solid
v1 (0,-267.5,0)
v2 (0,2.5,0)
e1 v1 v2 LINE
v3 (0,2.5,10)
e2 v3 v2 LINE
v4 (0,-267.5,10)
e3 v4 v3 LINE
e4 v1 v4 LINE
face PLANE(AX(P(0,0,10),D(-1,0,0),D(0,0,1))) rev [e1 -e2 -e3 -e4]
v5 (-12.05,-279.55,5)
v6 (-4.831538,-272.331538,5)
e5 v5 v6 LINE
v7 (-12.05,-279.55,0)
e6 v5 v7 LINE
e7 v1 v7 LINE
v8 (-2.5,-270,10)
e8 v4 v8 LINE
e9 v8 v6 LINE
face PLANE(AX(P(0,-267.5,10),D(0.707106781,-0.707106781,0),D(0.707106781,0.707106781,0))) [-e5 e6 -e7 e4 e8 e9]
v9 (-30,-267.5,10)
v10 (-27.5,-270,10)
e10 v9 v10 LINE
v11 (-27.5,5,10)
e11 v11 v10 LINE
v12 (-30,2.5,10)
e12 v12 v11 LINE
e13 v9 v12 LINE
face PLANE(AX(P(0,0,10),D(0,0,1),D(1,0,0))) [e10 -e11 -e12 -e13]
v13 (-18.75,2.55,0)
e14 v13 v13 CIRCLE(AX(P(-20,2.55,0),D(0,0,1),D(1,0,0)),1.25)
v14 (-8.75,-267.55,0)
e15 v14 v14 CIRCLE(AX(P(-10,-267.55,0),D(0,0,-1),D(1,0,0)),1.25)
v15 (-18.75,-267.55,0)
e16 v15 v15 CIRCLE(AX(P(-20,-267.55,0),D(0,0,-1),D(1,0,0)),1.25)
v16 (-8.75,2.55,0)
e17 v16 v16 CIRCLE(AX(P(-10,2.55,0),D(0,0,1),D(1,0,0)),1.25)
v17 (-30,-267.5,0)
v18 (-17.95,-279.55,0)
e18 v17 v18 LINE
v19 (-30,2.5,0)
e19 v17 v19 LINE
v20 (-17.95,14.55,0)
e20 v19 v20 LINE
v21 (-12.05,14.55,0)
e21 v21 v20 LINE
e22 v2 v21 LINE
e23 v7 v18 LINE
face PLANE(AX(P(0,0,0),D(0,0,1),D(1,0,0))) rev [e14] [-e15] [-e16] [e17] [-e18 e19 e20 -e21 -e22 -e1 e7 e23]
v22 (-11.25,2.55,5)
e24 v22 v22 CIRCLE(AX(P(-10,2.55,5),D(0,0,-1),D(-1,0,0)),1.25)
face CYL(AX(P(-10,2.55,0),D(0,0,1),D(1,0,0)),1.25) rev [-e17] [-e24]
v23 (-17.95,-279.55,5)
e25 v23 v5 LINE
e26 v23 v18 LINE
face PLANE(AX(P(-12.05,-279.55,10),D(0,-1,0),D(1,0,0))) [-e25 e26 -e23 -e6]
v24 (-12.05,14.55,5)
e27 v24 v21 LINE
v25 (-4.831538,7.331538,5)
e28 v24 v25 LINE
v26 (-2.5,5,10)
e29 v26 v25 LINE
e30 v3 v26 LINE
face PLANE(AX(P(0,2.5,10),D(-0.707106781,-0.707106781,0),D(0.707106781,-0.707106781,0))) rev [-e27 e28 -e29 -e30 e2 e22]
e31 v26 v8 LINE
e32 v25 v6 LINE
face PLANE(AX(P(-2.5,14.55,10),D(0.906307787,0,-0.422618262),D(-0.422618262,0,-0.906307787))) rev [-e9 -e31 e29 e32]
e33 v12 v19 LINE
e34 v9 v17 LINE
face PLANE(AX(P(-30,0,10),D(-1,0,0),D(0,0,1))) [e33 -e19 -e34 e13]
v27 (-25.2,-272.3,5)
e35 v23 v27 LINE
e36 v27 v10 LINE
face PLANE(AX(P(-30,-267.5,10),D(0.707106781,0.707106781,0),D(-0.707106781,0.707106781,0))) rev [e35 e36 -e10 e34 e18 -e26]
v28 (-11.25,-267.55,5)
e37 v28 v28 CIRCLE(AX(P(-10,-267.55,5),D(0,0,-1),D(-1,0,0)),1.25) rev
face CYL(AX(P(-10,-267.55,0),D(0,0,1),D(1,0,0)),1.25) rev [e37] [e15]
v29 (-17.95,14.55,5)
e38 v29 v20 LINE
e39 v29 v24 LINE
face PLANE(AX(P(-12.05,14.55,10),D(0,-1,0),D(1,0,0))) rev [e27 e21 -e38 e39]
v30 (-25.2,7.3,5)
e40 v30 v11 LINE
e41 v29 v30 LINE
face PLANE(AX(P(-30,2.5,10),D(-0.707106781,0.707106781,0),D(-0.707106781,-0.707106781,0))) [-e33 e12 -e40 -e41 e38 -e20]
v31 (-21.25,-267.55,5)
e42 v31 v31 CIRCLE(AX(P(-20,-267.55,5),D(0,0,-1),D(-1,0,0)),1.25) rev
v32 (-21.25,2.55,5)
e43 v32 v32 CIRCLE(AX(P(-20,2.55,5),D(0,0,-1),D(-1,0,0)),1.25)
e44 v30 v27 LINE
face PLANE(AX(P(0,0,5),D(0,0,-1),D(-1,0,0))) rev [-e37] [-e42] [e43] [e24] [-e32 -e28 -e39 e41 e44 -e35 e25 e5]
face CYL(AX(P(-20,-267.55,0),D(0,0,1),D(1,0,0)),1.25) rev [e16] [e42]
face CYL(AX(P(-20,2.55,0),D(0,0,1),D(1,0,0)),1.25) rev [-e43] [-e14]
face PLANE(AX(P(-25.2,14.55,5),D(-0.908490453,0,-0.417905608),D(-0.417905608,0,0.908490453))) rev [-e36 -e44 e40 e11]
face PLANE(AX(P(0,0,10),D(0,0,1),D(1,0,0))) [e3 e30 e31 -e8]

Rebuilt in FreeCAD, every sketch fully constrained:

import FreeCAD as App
import Part
import Sketcher


def faces_at(feature, points):
    """Names of the faces that lie closest to the given points."""
    faces = feature.Shape.Faces
    near = lambda p: min(range(len(faces)), key=lambda i: faces[i].distToShape(Part.Vertex(*p))[0])
    return sorted({f"Face{near(p) + 1}" for p in points})


def add_polygon(sketch, points):
    """Adds a closed chain of lines whose ends are joined by coincident constraints."""
    first, n = sketch.GeometryCount, len(points)
    for a, b in zip(points, points[1:] + points[:1]):
        sketch.addGeometry(Part.LineSegment(App.Vector(*a, 0), App.Vector(*b, 0)), False)
    for i in range(n):
        sketch.addConstraint(Sketcher.Constraint("Coincident", first + i, 2, first + (i + 1) % n, 1))

doc = App.newDocument("Part")
body = doc.addObject("PartDesign::Body", "Body")

# Sketch on XY plane
sketch1 = doc.addObject("Sketcher::SketchObject", "Sketch")
body.addObject(sketch1)
sketch1.AttachmentSupport = (doc.XY_Plane, [""])
sketch1.MapMode = "FlatFace"
add_polygon(sketch1, [(-30, 0), (0, 0), (0, 2.5), (-12.1, 14.6), (-17.9, 14.6), (-30, 2.5)])  # lines 0-5
sketch1.addConstraint(Sketcher.Constraint("Horizontal", 0))
sketch1.addConstraint(Sketcher.Constraint("Vertical", 1))
sketch1.addConstraint(Sketcher.Constraint("Horizontal", 3))
sketch1.addConstraint(Sketcher.Constraint("Vertical", 5))
sketch1.addConstraint(Sketcher.Constraint("Coincident", 0, 2, -1, 1))
sketch1.addConstraint(Sketcher.Constraint("Perpendicular", 2, 4))
sketch1.addConstraint(Sketcher.Constraint("Horizontal", 1, 2, 4, 2))
sketch1.addConstraint(Sketcher.Constraint("Equal", 2, 4))
sketch1.addConstraint(Sketcher.Constraint("DistanceX", 0, 1, 0, 2, 30.0))
sketch1.addConstraint(Sketcher.Constraint("DistanceX", 3, 2, 3, 1, 5.9))
sketch1.addConstraint(Sketcher.Constraint("DistanceY", 1, 1, 1, 2, 2.5))
pad1 = doc.addObject("PartDesign::Pad", "Pad")
body.addObject(pad1)
pad1.Profile = sketch1
pad1.Length = 10

# Sketch on XZ plane
sketch2 = doc.addObject("Sketcher::SketchObject", "Sketch001")
body.addObject(sketch2)
sketch2.AttachmentSupport = (doc.XZ_Plane, [""])
sketch2.MapMode = "FlatFace"
add_polygon(sketch2, [(-30, 10), (-30, 0), (0, 0), (0, 10)])  # lines 0-3
sketch2.addConstraint(Sketcher.Constraint("Vertical", 0))
sketch2.addConstraint(Sketcher.Constraint("Horizontal", 1))
sketch2.addConstraint(Sketcher.Constraint("Vertical", 2))
sketch2.addConstraint(Sketcher.Constraint("Horizontal", 3))
sketch2.addConstraint(Sketcher.Constraint("Coincident", 1, 2, -1, 1))
sketch2.addConstraint(Sketcher.Constraint("DistanceX", 1, 1, 1, 2, 30.0))
sketch2.addConstraint(Sketcher.Constraint("DistanceY", 0, 2, 0, 1, 10.0))
pad2 = doc.addObject("PartDesign::Pad", "Pad001")
body.addObject(pad2)
pad2.Profile = sketch2
pad2.Length = 267.5
doc.recompute()

datumplane = doc.addObject("PartDesign::Plane", "DatumPlane")
body.addObject(datumplane)
datumplane.AttachmentSupport = (doc.XZ_Plane, [""])
datumplane.MapMode = "FlatFace"
datumplane.AttachmentOffset = App.Placement(App.Vector(0, 0, 132.5), App.Rotation())
mirrored = doc.addObject("PartDesign::Mirrored", "Mirrored")
body.addObject(mirrored)
mirrored.Originals = [pad1]
mirrored.MirrorPlane = (datumplane, [""])
body.Tip = mirrored
body2 = doc.addObject("PartDesign::Body", "Body001")

# Sketch on XY plane
sketch3 = doc.addObject("Sketcher::SketchObject", "Sketch002")
body2.addObject(sketch3)
sketch3.AttachmentSupport = (doc.getObject("XY_Plane001"), [""])
sketch3.MapMode = "FlatFace"
sketch3.AttachmentOffset = App.Placement(App.Vector(0, 0, 10), App.Rotation())
add_polygon(sketch3, [(-28, 15), (-28, -295), (-2, -295), (-2, 15)])  # lines 0-3
sketch3.addConstraint(Sketcher.Constraint("Vertical", 0))
sketch3.addConstraint(Sketcher.Constraint("Horizontal", 1))
sketch3.addConstraint(Sketcher.Constraint("Vertical", 2))
sketch3.addConstraint(Sketcher.Constraint("Horizontal", 3))
sketch3.addConstraint(Sketcher.Constraint("DistanceX", 1, 1, 1, 2, 25.0))
sketch3.addConstraint(Sketcher.Constraint("DistanceY", 0, 2, 0, 1, 309.1))
sketch3.addConstraint(Sketcher.Constraint("DistanceX", 0, 2, -1, 1, 27.5))
sketch3.addConstraint(Sketcher.Constraint("DistanceY", 0, 2, -1, 1, 294.55))
pad3 = doc.addObject("PartDesign::Pad", "Pad002")
body2.addObject(pad3)
pad3.Profile = sketch3
pad3.Length = 5
pad3.Reversed = True
doc.recompute()

datumplane2 = doc.addObject("PartDesign::Plane", "DatumPlane001")
body2.addObject(datumplane2)
datumplane2.AttachmentSupport = (doc.getObject("XY_Plane001"), [""])
datumplane2.MapMode = "FlatFace"
datumplane2.AttachmentOffset = App.Placement(App.Vector(0, 0, 10), App.Rotation())
draft = doc.addObject("PartDesign::Draft", "Draft")
body2.addObject(draft)
draft.Base = (pad3, faces_at(pad3, [
    (-27.5, -140, 7.5),
    (-15, -294.55, 7.5),
    (-2.5, -140, 7.5),
    (-15, 14.55, 7.5),
]))
draft.NeutralPlane = (datumplane2, [""])
draft.Angle = 25
draft.Reversed = True
doc.recompute()

boolean = doc.addObject("PartDesign::Boolean", "Boolean")
body.addObject(boolean)
boolean.Type = "Cut"
boolean.addObjects([body2])

# Sketch on XZ plane
sketch4 = doc.addObject("Sketcher::SketchObject", "Sketch003")
body.addObject(sketch4)
sketch4.AttachmentSupport = (doc.XZ_Plane, [""])
sketch4.MapMode = "FlatFace"
sketch4.AttachmentOffset = App.Placement(App.Vector(0, 0, 279.55), App.Rotation())
add_polygon(sketch4, [(-2, 10), (-28, 10), (-25, 5), (-14, 5)])  # lines 0-3
sketch4.addConstraint(Sketcher.Constraint("Horizontal", 0))
sketch4.addConstraint(Sketcher.Constraint("Horizontal", 2))
sketch4.addConstraint(Sketcher.Constraint("DistanceX", 0, 2, 0, 1, 25.0))
sketch4.addConstraint(Sketcher.Constraint("DistanceY", -1, 1, 0, 2, 10.0))
sketch4.addConstraint(Sketcher.Constraint("DistanceY", -1, 1, 1, 2, 5.0))
sketch4.addConstraint(Sketcher.Constraint("DistanceX", 2, 1, 2, 2, 10.85))
sketch4.addConstraint(Sketcher.Constraint("DistanceX", 0, 2, -1, 1, 27.5))
sketch4.addConstraint(Sketcher.Constraint("DistanceX", 1, 2, -1, 1, 25.2))
pocket1 = doc.addObject("PartDesign::Pocket", "Pocket")
body.addObject(pocket1)
pocket1.Profile = sketch4
pocket1.Type = "ThroughAll"

# Sketch on XY plane
sketch5 = doc.addObject("Sketcher::SketchObject", "Sketch004")
body.addObject(sketch5)
sketch5.AttachmentSupport = (doc.XY_Plane, [""])
sketch5.MapMode = "FlatFace"
sketch5.AttachmentOffset = App.Placement(App.Vector(0, 0, 10), App.Rotation())
sketch5.addGeometry(Part.Circle(App.Vector(-10, 2.5, 0), App.Vector(0, 0, 1), 1.2), False)
sketch5.addGeometry(Part.Circle(App.Vector(-20, 2.5, 0), App.Vector(0, 0, 1), 1.2), False)
sketch5.addConstraint(Sketcher.Constraint("Equal", 0, 1))
sketch5.addConstraint(Sketcher.Constraint("Horizontal", 0, 3, 1, 3))
sketch5.addConstraint(Sketcher.Constraint("Diameter", 0, 2.5))
sketch5.addConstraint(Sketcher.Constraint("DistanceX", 0, 3, -1, 1, 10.0))
sketch5.addConstraint(Sketcher.Constraint("DistanceX", 1, 3, -1, 1, 20.0))
sketch5.addConstraint(Sketcher.Constraint("DistanceY", -1, 1, 0, 3, 2.55))
pocket2 = doc.addObject("PartDesign::Pocket", "Pocket001")
body.addObject(pocket2)
pocket2.Profile = sketch5
pocket2.Length = 10
doc.recompute()

datumplane3 = doc.addObject("PartDesign::Plane", "DatumPlane002")
body.addObject(datumplane3)
datumplane3.AttachmentSupport = (doc.XZ_Plane, [""])
datumplane3.MapMode = "FlatFace"
datumplane3.AttachmentOffset = App.Placement(App.Vector(0, 0, 132.5), App.Rotation())
mirrored2 = doc.addObject("PartDesign::Mirrored", "Mirrored001")
body.addObject(mirrored2)
mirrored2.Originals = [pocket2]
mirrored2.MirrorPlane = (datumplane3, [""])
body.Tip = mirrored2

# Sketch on XZ plane
sketch6 = doc.addObject("Sketcher::SketchObject", "Sketch005")
body.addObject(sketch6)
sketch6.AttachmentSupport = (doc.XZ_Plane, [""])
sketch6.MapMode = "FlatFace"
sketch6.AttachmentOffset = App.Placement(App.Vector(0, 0, 279.55), App.Rotation())
add_polygon(sketch6, [(-25, 12), (-25, 5), (-5, 5), (-5, 12)])  # lines 0-3
sketch6.addConstraint(Sketcher.Constraint("Vertical", 0))
sketch6.addConstraint(Sketcher.Constraint("Horizontal", 1))
sketch6.addConstraint(Sketcher.Constraint("Vertical", 2))
sketch6.addConstraint(Sketcher.Constraint("Horizontal", 3))
sketch6.addConstraint(Sketcher.Constraint("DistanceY", -1, 1, 0, 2, 5.0))
sketch6.addConstraint(Sketcher.Constraint("DistanceX", 0, 2, -1, 1, 25.2))
sketch6.addConstraint(Sketcher.Constraint("DistanceX", 1, 1, 1, 2, 20.368462))
sketch6.addConstraint(Sketcher.Constraint("DistanceY", 0, 2, 0, 1, 6.660502))
pocket3 = doc.addObject("PartDesign::Pocket", "Pocket002")
body.addObject(pocket3)
pocket3.Profile = sketch6
pocket3.Length = 400

doc.recompute()
